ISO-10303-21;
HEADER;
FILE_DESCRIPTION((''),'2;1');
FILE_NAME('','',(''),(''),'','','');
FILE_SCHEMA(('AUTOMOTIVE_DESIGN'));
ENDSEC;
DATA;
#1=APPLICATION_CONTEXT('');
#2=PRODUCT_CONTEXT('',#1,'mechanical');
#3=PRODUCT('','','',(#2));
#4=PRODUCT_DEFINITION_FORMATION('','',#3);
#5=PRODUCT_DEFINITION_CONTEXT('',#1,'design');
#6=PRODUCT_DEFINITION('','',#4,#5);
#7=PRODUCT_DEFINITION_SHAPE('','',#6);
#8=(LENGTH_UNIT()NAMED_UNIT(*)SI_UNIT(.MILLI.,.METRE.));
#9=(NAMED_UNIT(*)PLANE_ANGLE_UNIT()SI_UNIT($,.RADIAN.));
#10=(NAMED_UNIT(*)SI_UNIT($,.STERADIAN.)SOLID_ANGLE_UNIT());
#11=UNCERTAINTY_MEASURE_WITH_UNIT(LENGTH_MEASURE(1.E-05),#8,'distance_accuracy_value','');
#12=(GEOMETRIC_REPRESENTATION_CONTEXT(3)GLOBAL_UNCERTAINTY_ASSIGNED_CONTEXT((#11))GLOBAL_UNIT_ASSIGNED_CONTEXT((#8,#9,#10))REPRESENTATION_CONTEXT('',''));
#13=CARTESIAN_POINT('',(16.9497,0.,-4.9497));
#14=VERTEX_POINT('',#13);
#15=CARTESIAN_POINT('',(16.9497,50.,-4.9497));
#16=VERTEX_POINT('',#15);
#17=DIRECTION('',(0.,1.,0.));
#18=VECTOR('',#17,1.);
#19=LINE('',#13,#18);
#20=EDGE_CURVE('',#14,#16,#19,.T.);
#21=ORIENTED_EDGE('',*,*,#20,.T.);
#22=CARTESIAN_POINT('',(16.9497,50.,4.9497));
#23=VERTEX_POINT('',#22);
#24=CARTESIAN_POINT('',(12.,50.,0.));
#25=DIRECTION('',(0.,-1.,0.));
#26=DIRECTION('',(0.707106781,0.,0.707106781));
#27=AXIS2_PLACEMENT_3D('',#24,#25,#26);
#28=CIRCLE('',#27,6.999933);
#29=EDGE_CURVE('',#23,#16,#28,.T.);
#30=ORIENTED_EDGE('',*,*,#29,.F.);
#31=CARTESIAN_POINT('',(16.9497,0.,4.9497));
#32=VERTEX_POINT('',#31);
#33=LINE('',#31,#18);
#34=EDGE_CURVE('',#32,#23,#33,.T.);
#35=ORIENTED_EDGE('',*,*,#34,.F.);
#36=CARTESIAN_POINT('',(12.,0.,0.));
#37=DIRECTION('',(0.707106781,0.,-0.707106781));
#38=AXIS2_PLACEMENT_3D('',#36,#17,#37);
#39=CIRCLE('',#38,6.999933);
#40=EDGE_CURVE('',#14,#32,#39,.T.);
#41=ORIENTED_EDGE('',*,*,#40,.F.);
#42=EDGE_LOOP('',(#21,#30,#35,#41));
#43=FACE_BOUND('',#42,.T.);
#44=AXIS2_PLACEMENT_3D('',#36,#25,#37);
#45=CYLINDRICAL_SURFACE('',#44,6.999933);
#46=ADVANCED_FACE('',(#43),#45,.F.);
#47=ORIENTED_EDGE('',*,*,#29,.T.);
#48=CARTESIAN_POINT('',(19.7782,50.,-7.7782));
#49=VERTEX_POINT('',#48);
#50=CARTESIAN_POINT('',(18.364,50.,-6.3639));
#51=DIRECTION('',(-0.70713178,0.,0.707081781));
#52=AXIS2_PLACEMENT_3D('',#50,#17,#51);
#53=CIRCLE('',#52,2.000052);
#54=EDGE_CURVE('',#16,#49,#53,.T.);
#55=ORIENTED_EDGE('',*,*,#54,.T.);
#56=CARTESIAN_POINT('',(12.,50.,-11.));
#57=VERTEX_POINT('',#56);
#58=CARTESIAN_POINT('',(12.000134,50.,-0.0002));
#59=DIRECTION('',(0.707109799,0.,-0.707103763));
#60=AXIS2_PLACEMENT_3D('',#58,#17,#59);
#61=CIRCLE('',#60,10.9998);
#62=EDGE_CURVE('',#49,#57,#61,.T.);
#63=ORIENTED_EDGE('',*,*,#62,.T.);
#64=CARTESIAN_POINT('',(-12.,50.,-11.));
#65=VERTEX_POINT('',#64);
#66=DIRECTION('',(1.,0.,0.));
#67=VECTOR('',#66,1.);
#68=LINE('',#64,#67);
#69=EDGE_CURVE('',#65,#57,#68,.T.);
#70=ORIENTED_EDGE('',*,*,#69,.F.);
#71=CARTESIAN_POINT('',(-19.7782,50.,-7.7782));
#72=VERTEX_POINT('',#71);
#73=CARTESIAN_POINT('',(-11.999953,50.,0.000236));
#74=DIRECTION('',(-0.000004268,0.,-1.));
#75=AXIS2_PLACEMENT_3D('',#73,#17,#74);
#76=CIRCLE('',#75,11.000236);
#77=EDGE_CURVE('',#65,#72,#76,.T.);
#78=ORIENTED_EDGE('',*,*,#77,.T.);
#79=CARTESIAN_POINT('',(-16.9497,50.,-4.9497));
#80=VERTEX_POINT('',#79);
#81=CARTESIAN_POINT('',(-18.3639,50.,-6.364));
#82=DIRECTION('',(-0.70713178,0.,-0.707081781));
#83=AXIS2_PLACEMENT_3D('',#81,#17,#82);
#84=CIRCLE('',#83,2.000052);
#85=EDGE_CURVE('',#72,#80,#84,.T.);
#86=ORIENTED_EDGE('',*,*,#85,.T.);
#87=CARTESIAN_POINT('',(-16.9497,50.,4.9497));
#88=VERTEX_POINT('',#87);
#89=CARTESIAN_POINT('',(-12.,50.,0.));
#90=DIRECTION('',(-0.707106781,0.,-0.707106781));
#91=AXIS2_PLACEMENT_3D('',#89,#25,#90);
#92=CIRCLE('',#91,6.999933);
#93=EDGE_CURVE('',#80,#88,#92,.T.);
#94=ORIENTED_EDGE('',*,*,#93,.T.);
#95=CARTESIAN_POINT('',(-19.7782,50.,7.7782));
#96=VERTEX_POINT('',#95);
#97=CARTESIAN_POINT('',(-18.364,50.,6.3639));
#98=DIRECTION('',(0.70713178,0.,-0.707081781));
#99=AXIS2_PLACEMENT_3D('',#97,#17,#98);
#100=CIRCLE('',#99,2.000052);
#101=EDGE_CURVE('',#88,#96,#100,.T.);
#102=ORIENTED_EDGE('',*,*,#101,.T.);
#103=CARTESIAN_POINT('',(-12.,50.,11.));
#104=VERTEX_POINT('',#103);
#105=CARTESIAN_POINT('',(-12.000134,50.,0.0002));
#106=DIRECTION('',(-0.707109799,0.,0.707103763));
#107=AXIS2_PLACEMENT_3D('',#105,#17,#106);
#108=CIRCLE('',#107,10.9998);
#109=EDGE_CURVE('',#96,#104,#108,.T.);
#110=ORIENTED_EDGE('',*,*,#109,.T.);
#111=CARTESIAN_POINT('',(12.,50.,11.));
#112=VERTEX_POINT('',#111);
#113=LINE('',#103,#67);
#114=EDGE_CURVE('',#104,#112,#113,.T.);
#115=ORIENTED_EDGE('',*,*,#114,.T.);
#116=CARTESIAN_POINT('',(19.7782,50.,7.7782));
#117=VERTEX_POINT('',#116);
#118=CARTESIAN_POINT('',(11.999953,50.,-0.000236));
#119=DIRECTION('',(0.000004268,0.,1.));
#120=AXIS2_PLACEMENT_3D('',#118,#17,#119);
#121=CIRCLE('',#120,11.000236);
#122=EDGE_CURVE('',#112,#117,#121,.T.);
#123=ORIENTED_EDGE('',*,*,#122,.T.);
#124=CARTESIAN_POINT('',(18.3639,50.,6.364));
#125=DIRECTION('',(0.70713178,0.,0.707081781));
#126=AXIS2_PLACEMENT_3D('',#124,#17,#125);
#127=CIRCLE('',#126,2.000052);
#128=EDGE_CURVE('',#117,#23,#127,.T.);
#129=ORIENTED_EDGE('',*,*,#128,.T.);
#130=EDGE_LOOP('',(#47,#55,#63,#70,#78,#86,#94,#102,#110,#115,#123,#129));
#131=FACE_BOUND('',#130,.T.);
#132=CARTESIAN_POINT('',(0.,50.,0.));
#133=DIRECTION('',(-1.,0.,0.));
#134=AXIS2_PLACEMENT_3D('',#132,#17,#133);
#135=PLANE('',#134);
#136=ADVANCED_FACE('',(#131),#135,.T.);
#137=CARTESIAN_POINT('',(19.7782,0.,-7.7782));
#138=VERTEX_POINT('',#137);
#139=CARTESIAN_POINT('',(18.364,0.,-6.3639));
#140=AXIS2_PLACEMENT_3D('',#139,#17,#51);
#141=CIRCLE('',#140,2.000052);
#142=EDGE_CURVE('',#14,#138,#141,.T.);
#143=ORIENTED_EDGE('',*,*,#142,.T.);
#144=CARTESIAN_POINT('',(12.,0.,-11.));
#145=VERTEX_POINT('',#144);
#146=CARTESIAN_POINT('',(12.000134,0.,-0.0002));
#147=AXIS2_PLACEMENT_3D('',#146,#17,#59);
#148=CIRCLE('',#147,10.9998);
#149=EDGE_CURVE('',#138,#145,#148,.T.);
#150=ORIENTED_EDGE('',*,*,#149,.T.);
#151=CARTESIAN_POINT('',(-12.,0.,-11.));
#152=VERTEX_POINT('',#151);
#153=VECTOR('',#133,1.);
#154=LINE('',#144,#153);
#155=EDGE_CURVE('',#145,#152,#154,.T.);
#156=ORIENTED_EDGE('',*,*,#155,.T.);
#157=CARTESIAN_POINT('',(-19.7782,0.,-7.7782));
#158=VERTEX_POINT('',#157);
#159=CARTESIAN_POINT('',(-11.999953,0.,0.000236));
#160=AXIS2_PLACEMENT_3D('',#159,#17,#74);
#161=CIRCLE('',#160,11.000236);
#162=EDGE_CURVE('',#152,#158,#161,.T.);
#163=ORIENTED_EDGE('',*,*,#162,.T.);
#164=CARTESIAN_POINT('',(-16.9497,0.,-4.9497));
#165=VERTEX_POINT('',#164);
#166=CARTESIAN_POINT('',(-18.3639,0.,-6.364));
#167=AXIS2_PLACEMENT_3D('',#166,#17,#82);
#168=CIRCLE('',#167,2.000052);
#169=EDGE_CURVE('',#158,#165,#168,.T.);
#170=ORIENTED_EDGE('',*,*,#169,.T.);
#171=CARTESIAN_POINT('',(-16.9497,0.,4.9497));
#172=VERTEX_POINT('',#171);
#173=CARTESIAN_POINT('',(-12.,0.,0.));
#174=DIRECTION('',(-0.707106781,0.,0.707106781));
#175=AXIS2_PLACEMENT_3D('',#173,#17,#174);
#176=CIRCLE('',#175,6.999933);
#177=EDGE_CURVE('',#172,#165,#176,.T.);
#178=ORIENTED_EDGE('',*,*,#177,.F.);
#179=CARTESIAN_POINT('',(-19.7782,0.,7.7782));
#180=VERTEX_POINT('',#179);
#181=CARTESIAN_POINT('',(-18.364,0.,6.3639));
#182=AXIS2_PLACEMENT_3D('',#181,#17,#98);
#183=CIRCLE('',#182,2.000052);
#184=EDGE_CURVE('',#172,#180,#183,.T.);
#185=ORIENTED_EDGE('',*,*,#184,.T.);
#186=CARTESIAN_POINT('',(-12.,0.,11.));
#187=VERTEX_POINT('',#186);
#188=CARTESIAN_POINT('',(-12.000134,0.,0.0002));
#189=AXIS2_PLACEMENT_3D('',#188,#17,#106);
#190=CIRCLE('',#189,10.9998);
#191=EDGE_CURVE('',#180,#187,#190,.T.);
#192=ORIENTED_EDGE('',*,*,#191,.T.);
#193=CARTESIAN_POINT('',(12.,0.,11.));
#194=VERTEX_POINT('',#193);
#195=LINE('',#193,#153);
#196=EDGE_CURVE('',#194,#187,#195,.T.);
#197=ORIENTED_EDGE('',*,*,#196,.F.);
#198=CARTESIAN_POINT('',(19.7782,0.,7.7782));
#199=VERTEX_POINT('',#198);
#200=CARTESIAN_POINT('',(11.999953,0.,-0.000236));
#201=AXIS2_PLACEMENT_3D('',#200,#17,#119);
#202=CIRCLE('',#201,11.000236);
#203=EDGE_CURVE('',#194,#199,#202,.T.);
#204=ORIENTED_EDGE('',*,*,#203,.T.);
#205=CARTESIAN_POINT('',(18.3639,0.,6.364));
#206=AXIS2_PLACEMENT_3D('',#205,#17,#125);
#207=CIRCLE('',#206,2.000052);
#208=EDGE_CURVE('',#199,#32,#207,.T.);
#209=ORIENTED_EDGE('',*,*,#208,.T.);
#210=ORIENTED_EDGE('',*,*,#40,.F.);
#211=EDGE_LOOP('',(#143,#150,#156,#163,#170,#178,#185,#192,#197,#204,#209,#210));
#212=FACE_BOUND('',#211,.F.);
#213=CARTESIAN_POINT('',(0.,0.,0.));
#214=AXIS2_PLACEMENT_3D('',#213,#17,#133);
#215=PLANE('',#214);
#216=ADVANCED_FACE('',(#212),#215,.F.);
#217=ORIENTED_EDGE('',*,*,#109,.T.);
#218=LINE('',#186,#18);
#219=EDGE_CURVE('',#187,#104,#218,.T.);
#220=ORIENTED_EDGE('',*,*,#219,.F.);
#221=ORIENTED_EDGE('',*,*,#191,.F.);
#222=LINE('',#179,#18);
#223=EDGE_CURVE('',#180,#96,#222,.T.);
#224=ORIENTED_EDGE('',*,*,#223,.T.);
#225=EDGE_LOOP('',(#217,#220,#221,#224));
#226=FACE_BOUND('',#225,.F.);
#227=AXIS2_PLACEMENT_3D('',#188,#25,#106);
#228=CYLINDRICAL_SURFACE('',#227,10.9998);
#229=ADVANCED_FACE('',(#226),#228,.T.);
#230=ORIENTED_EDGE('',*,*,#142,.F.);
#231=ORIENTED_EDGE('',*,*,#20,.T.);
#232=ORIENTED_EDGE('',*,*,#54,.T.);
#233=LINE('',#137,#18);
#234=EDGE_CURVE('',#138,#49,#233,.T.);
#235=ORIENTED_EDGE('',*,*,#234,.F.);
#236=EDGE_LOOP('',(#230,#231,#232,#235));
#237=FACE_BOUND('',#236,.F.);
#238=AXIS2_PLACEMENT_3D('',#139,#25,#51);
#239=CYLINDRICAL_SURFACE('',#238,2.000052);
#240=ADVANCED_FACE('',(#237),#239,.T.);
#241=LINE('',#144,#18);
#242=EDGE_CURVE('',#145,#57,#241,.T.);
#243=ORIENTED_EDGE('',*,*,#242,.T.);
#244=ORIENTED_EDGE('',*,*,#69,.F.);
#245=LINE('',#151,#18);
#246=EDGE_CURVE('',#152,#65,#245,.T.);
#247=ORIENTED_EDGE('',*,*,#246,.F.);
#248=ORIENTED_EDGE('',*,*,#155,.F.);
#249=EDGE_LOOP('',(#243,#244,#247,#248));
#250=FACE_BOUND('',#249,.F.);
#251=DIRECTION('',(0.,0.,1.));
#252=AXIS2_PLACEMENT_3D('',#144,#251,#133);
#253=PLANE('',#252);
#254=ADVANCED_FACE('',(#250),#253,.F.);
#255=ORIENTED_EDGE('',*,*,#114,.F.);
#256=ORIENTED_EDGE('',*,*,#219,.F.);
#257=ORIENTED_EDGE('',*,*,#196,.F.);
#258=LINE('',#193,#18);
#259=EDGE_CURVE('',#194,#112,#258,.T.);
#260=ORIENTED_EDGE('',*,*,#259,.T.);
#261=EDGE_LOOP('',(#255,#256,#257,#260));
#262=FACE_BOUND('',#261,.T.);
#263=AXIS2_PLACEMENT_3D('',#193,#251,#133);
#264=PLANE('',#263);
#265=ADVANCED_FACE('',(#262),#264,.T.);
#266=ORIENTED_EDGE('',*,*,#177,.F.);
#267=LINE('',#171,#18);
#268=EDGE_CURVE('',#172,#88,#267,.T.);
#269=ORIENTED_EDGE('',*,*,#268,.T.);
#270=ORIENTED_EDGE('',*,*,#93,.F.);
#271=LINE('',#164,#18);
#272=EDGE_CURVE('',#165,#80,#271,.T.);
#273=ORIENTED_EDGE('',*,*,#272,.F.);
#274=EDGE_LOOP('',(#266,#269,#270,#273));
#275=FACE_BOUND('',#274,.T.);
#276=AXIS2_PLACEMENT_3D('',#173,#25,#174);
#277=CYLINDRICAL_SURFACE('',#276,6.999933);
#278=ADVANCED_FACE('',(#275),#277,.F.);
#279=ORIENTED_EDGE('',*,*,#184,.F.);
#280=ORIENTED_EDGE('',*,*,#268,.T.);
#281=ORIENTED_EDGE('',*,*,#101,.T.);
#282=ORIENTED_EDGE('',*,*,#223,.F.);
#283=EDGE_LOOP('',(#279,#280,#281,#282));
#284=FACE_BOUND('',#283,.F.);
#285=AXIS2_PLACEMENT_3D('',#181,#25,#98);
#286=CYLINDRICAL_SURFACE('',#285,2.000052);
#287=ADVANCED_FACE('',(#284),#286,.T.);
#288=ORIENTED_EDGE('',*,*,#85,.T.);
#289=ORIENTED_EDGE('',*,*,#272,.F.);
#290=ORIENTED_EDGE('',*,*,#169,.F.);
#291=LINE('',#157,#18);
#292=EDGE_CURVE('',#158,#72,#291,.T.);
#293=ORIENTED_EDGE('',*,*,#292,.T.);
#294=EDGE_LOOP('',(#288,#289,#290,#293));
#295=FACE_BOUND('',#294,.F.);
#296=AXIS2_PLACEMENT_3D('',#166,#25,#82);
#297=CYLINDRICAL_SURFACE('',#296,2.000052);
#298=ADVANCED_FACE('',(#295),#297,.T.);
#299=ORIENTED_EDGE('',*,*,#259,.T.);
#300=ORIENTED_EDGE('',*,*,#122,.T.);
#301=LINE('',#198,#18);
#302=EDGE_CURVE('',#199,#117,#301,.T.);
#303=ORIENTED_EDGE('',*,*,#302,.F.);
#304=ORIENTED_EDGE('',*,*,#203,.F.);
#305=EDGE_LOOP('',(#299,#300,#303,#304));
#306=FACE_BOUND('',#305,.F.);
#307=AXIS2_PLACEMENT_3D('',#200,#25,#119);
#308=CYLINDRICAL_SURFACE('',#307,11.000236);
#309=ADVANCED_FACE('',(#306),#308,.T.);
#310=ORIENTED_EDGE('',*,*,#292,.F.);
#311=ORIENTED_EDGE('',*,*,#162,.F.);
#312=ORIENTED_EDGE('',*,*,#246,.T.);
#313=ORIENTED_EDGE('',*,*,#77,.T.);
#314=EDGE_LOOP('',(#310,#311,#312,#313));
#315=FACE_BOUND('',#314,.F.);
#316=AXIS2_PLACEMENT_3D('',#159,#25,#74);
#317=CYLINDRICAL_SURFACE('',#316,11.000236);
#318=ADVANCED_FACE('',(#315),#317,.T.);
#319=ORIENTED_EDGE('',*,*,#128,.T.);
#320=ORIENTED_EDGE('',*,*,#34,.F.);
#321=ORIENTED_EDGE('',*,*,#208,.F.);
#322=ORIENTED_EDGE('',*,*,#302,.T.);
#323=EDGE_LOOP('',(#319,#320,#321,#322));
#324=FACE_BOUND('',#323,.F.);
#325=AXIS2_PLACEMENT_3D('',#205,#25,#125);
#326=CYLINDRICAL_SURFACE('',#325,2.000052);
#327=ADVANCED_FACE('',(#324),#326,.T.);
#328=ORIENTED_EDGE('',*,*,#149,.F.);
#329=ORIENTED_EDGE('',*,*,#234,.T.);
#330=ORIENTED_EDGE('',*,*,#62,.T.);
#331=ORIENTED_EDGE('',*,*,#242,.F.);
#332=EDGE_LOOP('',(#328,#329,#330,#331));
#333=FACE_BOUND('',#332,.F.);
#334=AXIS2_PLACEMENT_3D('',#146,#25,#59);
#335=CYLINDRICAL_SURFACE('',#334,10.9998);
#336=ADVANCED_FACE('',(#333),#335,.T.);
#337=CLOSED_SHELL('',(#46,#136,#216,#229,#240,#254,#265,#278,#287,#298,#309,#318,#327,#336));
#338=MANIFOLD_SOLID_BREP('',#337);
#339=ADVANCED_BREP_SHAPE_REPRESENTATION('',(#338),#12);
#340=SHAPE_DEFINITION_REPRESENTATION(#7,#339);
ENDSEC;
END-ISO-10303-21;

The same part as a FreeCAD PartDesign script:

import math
import FreeCAD as App
import Part
import Sketcher
from FreeCAD import Vector
Q = App.Units.Quantity

doc = App.newDocument("Part")
body = doc.addObject("PartDesign::Body", "Body")

# Sketch on XZ plane
sketch1 = body.newObject("Sketcher::SketchObject", "Sketch")
sketch1.AttachmentSupport = (doc.getObject("XZ_Plane"), [""])
sketch1.MapMode = "FlatFace"
sketch1.addGeometry([
    Part.LineSegment(Vector(12, -11, 0), Vector(-12, -11, 0)),  # 0
    Part.ArcOfCircle(Part.Circle(Vector(-12, 0, 0), Vector(0, 0, 1), 11.000036), math.radians(-135), math.radians(-90)),  # 1
    Part.ArcOfCircle(Part.Circle(Vector(-18.364, -6.364, 0), Vector(0, 0, 1), 1.999981), math.radians(45), math.radians(225)),  # 2
    Part.ArcOfCircle(Part.Circle(Vector(-12, 0, 0), Vector(0, 0, 1), 6.999933), math.radians(-135), math.radians(135)),  # 3
    Part.ArcOfCircle(Part.Circle(Vector(-18.364, 6.364, 0), Vector(0, 0, 1), 2.000122), math.radians(135), math.radians(315)),  # 4
    Part.ArcOfCircle(Part.Circle(Vector(-12, 0, 0), Vector(0, 0, 1), 11), math.radians(90), math.radians(135)),  # 5
    Part.LineSegment(Vector(-12, 11, 0), Vector(12, 11, 0)),  # 6
    Part.ArcOfCircle(Part.Circle(Vector(12, 0, 0), Vector(0, 0, 1), 11.000036), math.radians(45), math.radians(90)),  # 7
    Part.ArcOfCircle(Part.Circle(Vector(18.364, 6.364, 0), Vector(0, 0, 1), 1.999981), math.radians(-135), math.radians(45)),  # 8
    Part.ArcOfCircle(Part.Circle(Vector(12, 0, 0), Vector(0, 0, 1), 6.999933), math.radians(45), math.radians(315)),  # 9
    Part.ArcOfCircle(Part.Circle(Vector(18.364, -6.364, 0), Vector(0, 0, 1), 2.000122), math.radians(-45), math.radians(135)),  # 10
    Part.ArcOfCircle(Part.Circle(Vector(12, 0, 0), Vector(0, 0, 1), 11), math.radians(-90), math.radians(-45)),  # 11
], False)
sketch1.addConstraint([
    Sketcher.Constraint("Tangent", 0, 2, 1, 2),
    Sketcher.Constraint("Tangent", 1, 1, 2, 2),
    Sketcher.Constraint("Tangent", 2, 1, 3, 1),
    Sketcher.Constraint("Tangent", 3, 2, 4, 2),
    Sketcher.Constraint("Tangent", 4, 1, 5, 2),
    Sketcher.Constraint("Tangent", 5, 1, 6, 1),
    Sketcher.Constraint("Tangent", 6, 2, 7, 2),
    Sketcher.Constraint("Tangent", 7, 1, 8, 2),
    Sketcher.Constraint("Tangent", 8, 1, 9, 1),
    Sketcher.Constraint("Tangent", 9, 2, 10, 2),
    Sketcher.Constraint("Tangent", 10, 1, 11, 2),
    Sketcher.Constraint("Tangent", 11, 1, 0, 1),
    Sketcher.Constraint("Horizontal", 0),
    Sketcher.Constraint("Horizontal", 6),
    Sketcher.Constraint("Coincident", 3, 3, 1, 3),
    Sketcher.Constraint("Coincident", 5, 3, 1, 3),
    Sketcher.Constraint("Coincident", 9, 3, 7, 3),
    Sketcher.Constraint("Coincident", 11, 3, 7, 3),
    Sketcher.Constraint("Equal", 2, 4),
    Sketcher.Constraint("Equal", 5, 7),
    Sketcher.Constraint("Equal", 4, 8),
    Sketcher.Constraint("Symmetric", 1, 3, 7, 3, -1, 1),
    Sketcher.Constraint("Horizontal", 4, 3, 8, 3),
    Sketcher.Constraint("Horizontal", 2, 3, 10, 3),
    Sketcher.Constraint("Vertical", 2, 3, 4, 3),
    Sketcher.Constraint("Radius", 1, Q("11 mm")),
    Sketcher.Constraint("Radius", 3, Q("7 mm")),
    Sketcher.Constraint("DistanceX", 1, 3, -1, 1, Q("12 mm")),
    Sketcher.Constraint("DistanceX", 2, 3, -1, 1, Q("18.364 mm")),
])
pad1 = body.newObject("PartDesign::Pad", "Pad")
pad1.Profile = sketch1
pad1.Length = 50
pad1.Reversed = True

doc.recompute()
